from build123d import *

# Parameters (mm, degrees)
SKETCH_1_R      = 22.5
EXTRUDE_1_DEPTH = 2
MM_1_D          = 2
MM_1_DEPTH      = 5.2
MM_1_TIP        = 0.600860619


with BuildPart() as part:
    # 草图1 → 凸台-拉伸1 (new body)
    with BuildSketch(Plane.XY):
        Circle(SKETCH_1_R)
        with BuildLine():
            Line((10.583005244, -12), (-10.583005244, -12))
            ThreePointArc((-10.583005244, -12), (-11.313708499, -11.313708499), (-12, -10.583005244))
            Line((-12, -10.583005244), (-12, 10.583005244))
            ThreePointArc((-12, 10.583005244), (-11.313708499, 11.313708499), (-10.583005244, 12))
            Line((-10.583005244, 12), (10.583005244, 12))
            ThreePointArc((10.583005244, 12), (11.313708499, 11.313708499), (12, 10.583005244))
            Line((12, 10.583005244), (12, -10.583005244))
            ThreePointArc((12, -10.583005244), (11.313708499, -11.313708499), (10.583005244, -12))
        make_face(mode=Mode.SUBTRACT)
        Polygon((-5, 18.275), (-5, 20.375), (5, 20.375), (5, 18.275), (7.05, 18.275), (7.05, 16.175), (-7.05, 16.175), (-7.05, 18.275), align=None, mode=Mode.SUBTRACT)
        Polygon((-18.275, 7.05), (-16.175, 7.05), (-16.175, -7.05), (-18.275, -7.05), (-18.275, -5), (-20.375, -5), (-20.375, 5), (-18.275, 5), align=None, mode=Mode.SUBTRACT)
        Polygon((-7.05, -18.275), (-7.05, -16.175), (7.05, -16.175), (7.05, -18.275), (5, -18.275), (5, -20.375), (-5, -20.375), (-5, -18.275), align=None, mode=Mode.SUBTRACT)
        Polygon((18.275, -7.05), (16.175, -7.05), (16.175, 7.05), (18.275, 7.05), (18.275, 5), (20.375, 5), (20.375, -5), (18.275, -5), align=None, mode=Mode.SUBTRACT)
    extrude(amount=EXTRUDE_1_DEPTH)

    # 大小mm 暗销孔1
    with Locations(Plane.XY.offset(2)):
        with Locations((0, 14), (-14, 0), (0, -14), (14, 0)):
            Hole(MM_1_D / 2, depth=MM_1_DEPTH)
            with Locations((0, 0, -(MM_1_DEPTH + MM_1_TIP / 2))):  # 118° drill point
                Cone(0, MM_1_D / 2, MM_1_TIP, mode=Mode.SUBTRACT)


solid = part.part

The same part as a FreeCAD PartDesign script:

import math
import FreeCAD as App
import Part
import Sketcher
Q = App.Units.Quantity


def add_polygon(sketch, points):
    """Adds a closed chain of lines whose ends are joined by coincident constraints."""
    first, n = sketch.GeometryCount, len(points)
    for a, b in zip(points, points[1:] + points[:1]):
        sketch.addGeometry(Part.LineSegment(App.Vector(*a, 0), App.Vector(*b, 0)), False)
    for i in range(n):
        sketch.addConstraint(Sketcher.Constraint("Coincident", first + i, 2, first + (i + 1) % n, 1))

doc = App.newDocument("Part")
params = doc.addObject("Spreadsheet::Sheet", "Params")
for row, (alias, value) in enumerate([
    ("sketch1_diameter", "45 mm"),
    ("sketch1_radius", "16 mm"),
    ("sketch1_width", "10 mm"),
    ("sketch1_width2", "14.1 mm"),
    ("sketch1_width3", "2.1 mm"),
    ("pad1_length", "2 mm"),
    ("sketch2_diameter", "2 mm"),
    ("hole_diameter", "2 mm"),
    ("hole_depth", "5.2 mm"),
], start=1):
    params.set(f"A{row}", alias)
    params.set(f"B{row}", "=" + value)
    params.setAlias(f"B{row}", alias)

body = doc.addObject("PartDesign::Body", "Body")

# Sketch on XY plane
sketch1 = body.newObject("Sketcher::SketchObject", "Sketch")
sketch1.AttachmentSupport = (doc.getObject("XY_Plane"), [""])
sketch1.MapMode = "FlatFace"
sketch1.addGeometry(Part.Circle(App.Vector(0, 0, 0), App.Vector(0, 0, 1), 22.5), False)  # 0
add_polygon(sketch1, [(-5, -18.3), (-7, -18.3), (-7, -16.2), (7, -16.2), (7, -18.3), (5, -18.3), (5, -20.4), (-5, -20.4)])  # lines 1-8
add_polygon(sketch1, [(-18.3, 5), (-18.3, 7), (-16.2, 7), (-16.2, -7), (-18.3, -7), (-18.3, -5), (-20.4, -5), (-20.4, 5)])  # lines 9-16
sketch1.addGeometry(Part.ArcOfCircle(Part.Circle(App.Vector(0, 0, 0), App.Vector(0, 0, 1), 16), math.radians(-48.59), math.radians(-41.41)), False)  # 17
sketch1.addGeometry(Part.LineSegment(App.Vector(10.6, -12, 0), App.Vector(-10.6, -12, 0)), False)  # 18
sketch1.addGeometry(Part.ArcOfCircle(Part.Circle(App.Vector(0, 0, 0), App.Vector(0, 0, 1), 16), math.radians(-138.59), math.radians(-131.41)), False)  # 19
sketch1.addGeometry(Part.LineSegment(App.Vector(-12, -10.6, 0), App.Vector(-12, 10.6, 0)), False)  # 20
sketch1.addGeometry(Part.ArcOfCircle(Part.Circle(App.Vector(0, 0, 0), App.Vector(0, 0, 1), 16), math.radians(131.41), math.radians(138.59)), False)  # 21
sketch1.addGeometry(Part.LineSegment(App.Vector(-10.6, 12, 0), App.Vector(10.6, 12, 0)), False)  # 22
sketch1.addGeometry(Part.ArcOfCircle(Part.Circle(App.Vector(0, 0, 0), App.Vector(0, 0, 1), 16), math.radians(41.41), math.radians(48.59)), False)  # 23
sketch1.addGeometry(Part.LineSegment(App.Vector(12, 10.6, 0), App.Vector(12, -10.6, 0)), False)  # 24
add_polygon(sketch1, [(18.3, -5), (18.3, -7), (16.2, -7), (16.2, 7), (18.3, 7), (18.3, 5), (20.4, 5), (20.4, -5)])  # lines 25-32
add_polygon(sketch1, [(-7, 18.3), (-5, 18.3), (-5, 20.4), (5, 20.4), (5, 18.3), (7, 18.3), (7, 16.2), (-7, 16.2)])  # lines 33-40
sketch1.addConstraint(Sketcher.Constraint("Coincident", 17, 1, 18, 1))
sketch1.addConstraint(Sketcher.Constraint("Coincident", 18, 2, 19, 2))
sketch1.addConstraint(Sketcher.Constraint("Coincident", 19, 1, 20, 1))
sketch1.addConstraint(Sketcher.Constraint("Coincident", 20, 2, 21, 2))
sketch1.addConstraint(Sketcher.Constraint("Coincident", 21, 1, 22, 1))
sketch1.addConstraint(Sketcher.Constraint("Coincident", 22, 2, 23, 2))
sketch1.addConstraint(Sketcher.Constraint("Coincident", 23, 1, 24, 1))
sketch1.addConstraint(Sketcher.Constraint("Coincident", 24, 2, 17, 2))
sketch1.addConstraint(Sketcher.Constraint("Horizontal", 1))
sketch1.addConstraint(Sketcher.Constraint("Vertical", 2))
sketch1.addConstraint(Sketcher.Constraint("Horizontal", 3))
sketch1.addConstraint(Sketcher.Constraint("Vertical", 4))
sketch1.addConstraint(Sketcher.Constraint("Horizontal", 5))
sketch1.addConstraint(Sketcher.Constraint("Vertical", 6))
sketch1.addConstraint(Sketcher.Constraint("Horizontal", 7))
sketch1.addConstraint(Sketcher.Constraint("Vertical", 8))
sketch1.addConstraint(Sketcher.Constraint("Vertical", 9))
sketch1.addConstraint(Sketcher.Constraint("Horizontal", 10))
sketch1.addConstraint(Sketcher.Constraint("Vertical", 11))
sketch1.addConstraint(Sketcher.Constraint("Horizontal", 12))
sketch1.addConstraint(Sketcher.Constraint("Vertical", 13))
sketch1.addConstraint(Sketcher.Constraint("Horizontal", 14))
sketch1.addConstraint(Sketcher.Constraint("Vertical", 15))
sketch1.addConstraint(Sketcher.Constraint("Horizontal", 16))
sketch1.addConstraint(Sketcher.Constraint("Horizontal", 18))
sketch1.addConstraint(Sketcher.Constraint("Vertical", 20))
sketch1.addConstraint(Sketcher.Constraint("Horizontal", 22))
sketch1.addConstraint(Sketcher.Constraint("Vertical", 24))
sketch1.addConstraint(Sketcher.Constraint("Vertical", 25))
sketch1.addConstraint(Sketcher.Constraint("Horizontal", 26))
sketch1.addConstraint(Sketcher.Constraint("Vertical", 27))
sketch1.addConstraint(Sketcher.Constraint("Horizontal", 28))
sketch1.addConstraint(Sketcher.Constraint("Vertical", 29))
sketch1.addConstraint(Sketcher.Constraint("Horizontal", 30))
sketch1.addConstraint(Sketcher.Constraint("Vertical", 31))
sketch1.addConstraint(Sketcher.Constraint("Horizontal", 32))
sketch1.addConstraint(Sketcher.Constraint("Horizontal", 33))
sketch1.addConstraint(Sketcher.Constraint("Vertical", 34))
sketch1.addConstraint(Sketcher.Constraint("Horizontal", 35))
sketch1.addConstraint(Sketcher.Constraint("Vertical", 36))
sketch1.addConstraint(Sketcher.Constraint("Horizontal", 37))
sketch1.addConstraint(Sketcher.Constraint("Vertical", 38))
sketch1.addConstraint(Sketcher.Constraint("Horizontal", 39))
sketch1.addConstraint(Sketcher.Constraint("Vertical", 40))
sketch1.addConstraint(Sketcher.Constraint("Coincident", 0, 3, -1, 1))
sketch1.addConstraint(Sketcher.Constraint("Coincident", 17, 3, -1, 1))
sketch1.addConstraint(Sketcher.Constraint("Coincident", 19, 3, -1, 1))
sketch1.addConstraint(Sketcher.Constraint("Coincident", 21, 3, -1, 1))
sketch1.addConstraint(Sketcher.Constraint("Coincident", 23, 3, -1, 1))
sketch1.addConstraint(Sketcher.Constraint("Equal", 17, 19))
sketch1.addConstraint(Sketcher.Constraint("Equal", 19, 21))
sketch1.addConstraint(Sketcher.Constraint("Equal", 21, 23))
sketch1.addConstraint(Sketcher.Constraint("Symmetric", 9, 2, 25, 2, -1, 1))
sketch1.addConstraint(Sketcher.Constraint("Symmetric", 11, 2, 27, 2, -1, 1))
sketch1.addConstraint(Sketcher.Constraint("Symmetric", 13, 2, 29, 2, -1, 1))
sketch1.addConstraint(Sketcher.Constraint("Symmetric", 15, 2, 31, 2, -1, 1))
sketch1.addConstraint(Sketcher.Constraint("Symmetric", 5, 2, 33, 2, -1, 1))
sketch1.addConstraint(Sketcher.Constraint("Symmetric", 7, 2, 35, 2, -1, 1))
sketch1.addConstraint(Sketcher.Constraint("Symmetric", 1, 2, 37, 2, -1, 1))
sketch1.addConstraint(Sketcher.Constraint("Symmetric", 3, 2, 39, 2, -1, 1))
sketch1.addConstraint(Sketcher.Constraint("Symmetric", 1, 2, 4, 2, -2))
sketch1.addConstraint(Sketcher.Constraint("Symmetric", 12, 2, 25, 2, -2))
sketch1.addConstraint(Sketcher.Constraint("Horizontal", 20, 2, 23, 1))
sketch1.addConstraint(Sketcher.Constraint("Horizontal", 16, 2, 29, 2))
sketch1.addConstraint(Sketcher.Constraint("Vertical", 18, 2, 21, 1))
sketch1.addConstraint(Sketcher.Constraint("Vertical", 8, 2, 33, 2))
sketch1.addConstraint(Sketcher.Constraint("Equal", 12, 14))
sketch1.addConstraint(Sketcher.Constraint("Equal", 32, 2))
sketch1.addConstraint(Sketcher.Constraint("Equal", 4, 6))
sketch1.addConstraint(Sketcher.Constraint("Equal", 37, 9))
sketch1.addConstraint(Sketcher.Constraint("Equal", 39, 11))
sketch1.addConstraint(Sketcher.Constraint("Equal", 22, 20))
sketch1.addConstraint(Sketcher.Constraint("Diameter", 0, Q("45 mm")))
sketch1.addConstraint(Sketcher.Constraint("Radius", 17, Q("16 mm")))
sketch1.addConstraint(Sketcher.Constraint("DistanceX", 7, 2, 7, 1, Q("10 mm")))
sketch1.addConstraint(Sketcher.Constraint("DistanceX", 3, 1, 3, 2, Q("14.1 mm")))
sketch1.addConstraint(Sketcher.Constraint("DistanceX", 10, 1, 10, 2, Q("2.1 mm")))
sketch1.addConstraint(Sketcher.Constraint("DistanceY", 17, 1, -1, 1, Q("12 mm")))
sketch1.addConstraint(Sketcher.Constraint("DistanceY", 1, 2, -1, 1, Q("18.275 mm")))
sketch1.addConstraint(Sketcher.Constraint("DistanceX", 9, 2, -1, 1, Q("18.275 mm")))
sketch1.setExpression("Constraints[104]", "Params.sketch1_diameter")
sketch1.setExpression("Constraints[105]", "Params.sketch1_radius")
sketch1.setExpression("Constraints[106]", "Params.sketch1_width")
sketch1.setExpression("Constraints[107]", "Params.sketch1_width2")
sketch1.setExpression("Constraints[108]", "Params.sketch1_width3")
pad1 = body.newObject("PartDesign::Pad", "Pad")
pad1.Profile = sketch1
pad1.setExpression("Length", "Params.pad1_length")

# Sketch on XY plane
sketch2 = body.newObject("Sketcher::SketchObject", "Sketch001")
sketch2.AttachmentSupport = (doc.getObject("XY_Plane"), [""])
sketch2.MapMode = "FlatFace"
sketch2.AttachmentOffset = App.Placement(App.Vector(0, 0, 2), App.Rotation())
sketch2.addGeometry(Part.Circle(App.Vector(0, 14, 0), App.Vector(0, 0, 1), 1), False)
sketch2.addGeometry(Part.Circle(App.Vector(-14, 0, 0), App.Vector(0, 0, 1), 1), False)
sketch2.addGeometry(Part.Circle(App.Vector(0, -14, 0), App.Vector(0, 0, 1), 1), False)
sketch2.addGeometry(Part.Circle(App.Vector(14, 0, 0), App.Vector(0, 0, 1), 1), False)
sketch2.addConstraint(Sketcher.Constraint("Equal", 0, 1))
sketch2.addConstraint(Sketcher.Constraint("Equal", 1, 2))
sketch2.addConstraint(Sketcher.Constraint("Equal", 2, 3))
sketch2.addConstraint(Sketcher.Constraint("Symmetric", 0, 3, 2, 3, -1, 1))
sketch2.addConstraint(Sketcher.Constraint("Symmetric", 1, 3, 3, 3, -1, 1))
sketch2.addConstraint(Sketcher.Constraint("PointOnObject", 0, 3, -2))
sketch2.addConstraint(Sketcher.Constraint("PointOnObject", 1, 3, -1))
sketch2.addConstraint(Sketcher.Constraint("Diameter", 0, Q("2 mm")))
sketch2.addConstraint(Sketcher.Constraint("DistanceY", -1, 1, 0, 3, Q("14 mm")))
sketch2.addConstraint(Sketcher.Constraint("DistanceX", 1, 3, -1, 1, Q("14 mm")))
sketch2.setExpression("Constraints[7]", "Params.sketch2_diameter")
doc.recompute()
hole = body.newObject("PartDesign::Hole", "Hole")
hole.Profile = sketch2
hole.ThreadType = "None"
hole.setExpression("Diameter", "Params.hole_diameter")
hole.DepthType = "Dimension"
hole.setExpression("Depth", "Params.hole_depth")
hole.DrillPoint = "Angled"
hole.DrillPointAngle = 118

doc.recompute()
